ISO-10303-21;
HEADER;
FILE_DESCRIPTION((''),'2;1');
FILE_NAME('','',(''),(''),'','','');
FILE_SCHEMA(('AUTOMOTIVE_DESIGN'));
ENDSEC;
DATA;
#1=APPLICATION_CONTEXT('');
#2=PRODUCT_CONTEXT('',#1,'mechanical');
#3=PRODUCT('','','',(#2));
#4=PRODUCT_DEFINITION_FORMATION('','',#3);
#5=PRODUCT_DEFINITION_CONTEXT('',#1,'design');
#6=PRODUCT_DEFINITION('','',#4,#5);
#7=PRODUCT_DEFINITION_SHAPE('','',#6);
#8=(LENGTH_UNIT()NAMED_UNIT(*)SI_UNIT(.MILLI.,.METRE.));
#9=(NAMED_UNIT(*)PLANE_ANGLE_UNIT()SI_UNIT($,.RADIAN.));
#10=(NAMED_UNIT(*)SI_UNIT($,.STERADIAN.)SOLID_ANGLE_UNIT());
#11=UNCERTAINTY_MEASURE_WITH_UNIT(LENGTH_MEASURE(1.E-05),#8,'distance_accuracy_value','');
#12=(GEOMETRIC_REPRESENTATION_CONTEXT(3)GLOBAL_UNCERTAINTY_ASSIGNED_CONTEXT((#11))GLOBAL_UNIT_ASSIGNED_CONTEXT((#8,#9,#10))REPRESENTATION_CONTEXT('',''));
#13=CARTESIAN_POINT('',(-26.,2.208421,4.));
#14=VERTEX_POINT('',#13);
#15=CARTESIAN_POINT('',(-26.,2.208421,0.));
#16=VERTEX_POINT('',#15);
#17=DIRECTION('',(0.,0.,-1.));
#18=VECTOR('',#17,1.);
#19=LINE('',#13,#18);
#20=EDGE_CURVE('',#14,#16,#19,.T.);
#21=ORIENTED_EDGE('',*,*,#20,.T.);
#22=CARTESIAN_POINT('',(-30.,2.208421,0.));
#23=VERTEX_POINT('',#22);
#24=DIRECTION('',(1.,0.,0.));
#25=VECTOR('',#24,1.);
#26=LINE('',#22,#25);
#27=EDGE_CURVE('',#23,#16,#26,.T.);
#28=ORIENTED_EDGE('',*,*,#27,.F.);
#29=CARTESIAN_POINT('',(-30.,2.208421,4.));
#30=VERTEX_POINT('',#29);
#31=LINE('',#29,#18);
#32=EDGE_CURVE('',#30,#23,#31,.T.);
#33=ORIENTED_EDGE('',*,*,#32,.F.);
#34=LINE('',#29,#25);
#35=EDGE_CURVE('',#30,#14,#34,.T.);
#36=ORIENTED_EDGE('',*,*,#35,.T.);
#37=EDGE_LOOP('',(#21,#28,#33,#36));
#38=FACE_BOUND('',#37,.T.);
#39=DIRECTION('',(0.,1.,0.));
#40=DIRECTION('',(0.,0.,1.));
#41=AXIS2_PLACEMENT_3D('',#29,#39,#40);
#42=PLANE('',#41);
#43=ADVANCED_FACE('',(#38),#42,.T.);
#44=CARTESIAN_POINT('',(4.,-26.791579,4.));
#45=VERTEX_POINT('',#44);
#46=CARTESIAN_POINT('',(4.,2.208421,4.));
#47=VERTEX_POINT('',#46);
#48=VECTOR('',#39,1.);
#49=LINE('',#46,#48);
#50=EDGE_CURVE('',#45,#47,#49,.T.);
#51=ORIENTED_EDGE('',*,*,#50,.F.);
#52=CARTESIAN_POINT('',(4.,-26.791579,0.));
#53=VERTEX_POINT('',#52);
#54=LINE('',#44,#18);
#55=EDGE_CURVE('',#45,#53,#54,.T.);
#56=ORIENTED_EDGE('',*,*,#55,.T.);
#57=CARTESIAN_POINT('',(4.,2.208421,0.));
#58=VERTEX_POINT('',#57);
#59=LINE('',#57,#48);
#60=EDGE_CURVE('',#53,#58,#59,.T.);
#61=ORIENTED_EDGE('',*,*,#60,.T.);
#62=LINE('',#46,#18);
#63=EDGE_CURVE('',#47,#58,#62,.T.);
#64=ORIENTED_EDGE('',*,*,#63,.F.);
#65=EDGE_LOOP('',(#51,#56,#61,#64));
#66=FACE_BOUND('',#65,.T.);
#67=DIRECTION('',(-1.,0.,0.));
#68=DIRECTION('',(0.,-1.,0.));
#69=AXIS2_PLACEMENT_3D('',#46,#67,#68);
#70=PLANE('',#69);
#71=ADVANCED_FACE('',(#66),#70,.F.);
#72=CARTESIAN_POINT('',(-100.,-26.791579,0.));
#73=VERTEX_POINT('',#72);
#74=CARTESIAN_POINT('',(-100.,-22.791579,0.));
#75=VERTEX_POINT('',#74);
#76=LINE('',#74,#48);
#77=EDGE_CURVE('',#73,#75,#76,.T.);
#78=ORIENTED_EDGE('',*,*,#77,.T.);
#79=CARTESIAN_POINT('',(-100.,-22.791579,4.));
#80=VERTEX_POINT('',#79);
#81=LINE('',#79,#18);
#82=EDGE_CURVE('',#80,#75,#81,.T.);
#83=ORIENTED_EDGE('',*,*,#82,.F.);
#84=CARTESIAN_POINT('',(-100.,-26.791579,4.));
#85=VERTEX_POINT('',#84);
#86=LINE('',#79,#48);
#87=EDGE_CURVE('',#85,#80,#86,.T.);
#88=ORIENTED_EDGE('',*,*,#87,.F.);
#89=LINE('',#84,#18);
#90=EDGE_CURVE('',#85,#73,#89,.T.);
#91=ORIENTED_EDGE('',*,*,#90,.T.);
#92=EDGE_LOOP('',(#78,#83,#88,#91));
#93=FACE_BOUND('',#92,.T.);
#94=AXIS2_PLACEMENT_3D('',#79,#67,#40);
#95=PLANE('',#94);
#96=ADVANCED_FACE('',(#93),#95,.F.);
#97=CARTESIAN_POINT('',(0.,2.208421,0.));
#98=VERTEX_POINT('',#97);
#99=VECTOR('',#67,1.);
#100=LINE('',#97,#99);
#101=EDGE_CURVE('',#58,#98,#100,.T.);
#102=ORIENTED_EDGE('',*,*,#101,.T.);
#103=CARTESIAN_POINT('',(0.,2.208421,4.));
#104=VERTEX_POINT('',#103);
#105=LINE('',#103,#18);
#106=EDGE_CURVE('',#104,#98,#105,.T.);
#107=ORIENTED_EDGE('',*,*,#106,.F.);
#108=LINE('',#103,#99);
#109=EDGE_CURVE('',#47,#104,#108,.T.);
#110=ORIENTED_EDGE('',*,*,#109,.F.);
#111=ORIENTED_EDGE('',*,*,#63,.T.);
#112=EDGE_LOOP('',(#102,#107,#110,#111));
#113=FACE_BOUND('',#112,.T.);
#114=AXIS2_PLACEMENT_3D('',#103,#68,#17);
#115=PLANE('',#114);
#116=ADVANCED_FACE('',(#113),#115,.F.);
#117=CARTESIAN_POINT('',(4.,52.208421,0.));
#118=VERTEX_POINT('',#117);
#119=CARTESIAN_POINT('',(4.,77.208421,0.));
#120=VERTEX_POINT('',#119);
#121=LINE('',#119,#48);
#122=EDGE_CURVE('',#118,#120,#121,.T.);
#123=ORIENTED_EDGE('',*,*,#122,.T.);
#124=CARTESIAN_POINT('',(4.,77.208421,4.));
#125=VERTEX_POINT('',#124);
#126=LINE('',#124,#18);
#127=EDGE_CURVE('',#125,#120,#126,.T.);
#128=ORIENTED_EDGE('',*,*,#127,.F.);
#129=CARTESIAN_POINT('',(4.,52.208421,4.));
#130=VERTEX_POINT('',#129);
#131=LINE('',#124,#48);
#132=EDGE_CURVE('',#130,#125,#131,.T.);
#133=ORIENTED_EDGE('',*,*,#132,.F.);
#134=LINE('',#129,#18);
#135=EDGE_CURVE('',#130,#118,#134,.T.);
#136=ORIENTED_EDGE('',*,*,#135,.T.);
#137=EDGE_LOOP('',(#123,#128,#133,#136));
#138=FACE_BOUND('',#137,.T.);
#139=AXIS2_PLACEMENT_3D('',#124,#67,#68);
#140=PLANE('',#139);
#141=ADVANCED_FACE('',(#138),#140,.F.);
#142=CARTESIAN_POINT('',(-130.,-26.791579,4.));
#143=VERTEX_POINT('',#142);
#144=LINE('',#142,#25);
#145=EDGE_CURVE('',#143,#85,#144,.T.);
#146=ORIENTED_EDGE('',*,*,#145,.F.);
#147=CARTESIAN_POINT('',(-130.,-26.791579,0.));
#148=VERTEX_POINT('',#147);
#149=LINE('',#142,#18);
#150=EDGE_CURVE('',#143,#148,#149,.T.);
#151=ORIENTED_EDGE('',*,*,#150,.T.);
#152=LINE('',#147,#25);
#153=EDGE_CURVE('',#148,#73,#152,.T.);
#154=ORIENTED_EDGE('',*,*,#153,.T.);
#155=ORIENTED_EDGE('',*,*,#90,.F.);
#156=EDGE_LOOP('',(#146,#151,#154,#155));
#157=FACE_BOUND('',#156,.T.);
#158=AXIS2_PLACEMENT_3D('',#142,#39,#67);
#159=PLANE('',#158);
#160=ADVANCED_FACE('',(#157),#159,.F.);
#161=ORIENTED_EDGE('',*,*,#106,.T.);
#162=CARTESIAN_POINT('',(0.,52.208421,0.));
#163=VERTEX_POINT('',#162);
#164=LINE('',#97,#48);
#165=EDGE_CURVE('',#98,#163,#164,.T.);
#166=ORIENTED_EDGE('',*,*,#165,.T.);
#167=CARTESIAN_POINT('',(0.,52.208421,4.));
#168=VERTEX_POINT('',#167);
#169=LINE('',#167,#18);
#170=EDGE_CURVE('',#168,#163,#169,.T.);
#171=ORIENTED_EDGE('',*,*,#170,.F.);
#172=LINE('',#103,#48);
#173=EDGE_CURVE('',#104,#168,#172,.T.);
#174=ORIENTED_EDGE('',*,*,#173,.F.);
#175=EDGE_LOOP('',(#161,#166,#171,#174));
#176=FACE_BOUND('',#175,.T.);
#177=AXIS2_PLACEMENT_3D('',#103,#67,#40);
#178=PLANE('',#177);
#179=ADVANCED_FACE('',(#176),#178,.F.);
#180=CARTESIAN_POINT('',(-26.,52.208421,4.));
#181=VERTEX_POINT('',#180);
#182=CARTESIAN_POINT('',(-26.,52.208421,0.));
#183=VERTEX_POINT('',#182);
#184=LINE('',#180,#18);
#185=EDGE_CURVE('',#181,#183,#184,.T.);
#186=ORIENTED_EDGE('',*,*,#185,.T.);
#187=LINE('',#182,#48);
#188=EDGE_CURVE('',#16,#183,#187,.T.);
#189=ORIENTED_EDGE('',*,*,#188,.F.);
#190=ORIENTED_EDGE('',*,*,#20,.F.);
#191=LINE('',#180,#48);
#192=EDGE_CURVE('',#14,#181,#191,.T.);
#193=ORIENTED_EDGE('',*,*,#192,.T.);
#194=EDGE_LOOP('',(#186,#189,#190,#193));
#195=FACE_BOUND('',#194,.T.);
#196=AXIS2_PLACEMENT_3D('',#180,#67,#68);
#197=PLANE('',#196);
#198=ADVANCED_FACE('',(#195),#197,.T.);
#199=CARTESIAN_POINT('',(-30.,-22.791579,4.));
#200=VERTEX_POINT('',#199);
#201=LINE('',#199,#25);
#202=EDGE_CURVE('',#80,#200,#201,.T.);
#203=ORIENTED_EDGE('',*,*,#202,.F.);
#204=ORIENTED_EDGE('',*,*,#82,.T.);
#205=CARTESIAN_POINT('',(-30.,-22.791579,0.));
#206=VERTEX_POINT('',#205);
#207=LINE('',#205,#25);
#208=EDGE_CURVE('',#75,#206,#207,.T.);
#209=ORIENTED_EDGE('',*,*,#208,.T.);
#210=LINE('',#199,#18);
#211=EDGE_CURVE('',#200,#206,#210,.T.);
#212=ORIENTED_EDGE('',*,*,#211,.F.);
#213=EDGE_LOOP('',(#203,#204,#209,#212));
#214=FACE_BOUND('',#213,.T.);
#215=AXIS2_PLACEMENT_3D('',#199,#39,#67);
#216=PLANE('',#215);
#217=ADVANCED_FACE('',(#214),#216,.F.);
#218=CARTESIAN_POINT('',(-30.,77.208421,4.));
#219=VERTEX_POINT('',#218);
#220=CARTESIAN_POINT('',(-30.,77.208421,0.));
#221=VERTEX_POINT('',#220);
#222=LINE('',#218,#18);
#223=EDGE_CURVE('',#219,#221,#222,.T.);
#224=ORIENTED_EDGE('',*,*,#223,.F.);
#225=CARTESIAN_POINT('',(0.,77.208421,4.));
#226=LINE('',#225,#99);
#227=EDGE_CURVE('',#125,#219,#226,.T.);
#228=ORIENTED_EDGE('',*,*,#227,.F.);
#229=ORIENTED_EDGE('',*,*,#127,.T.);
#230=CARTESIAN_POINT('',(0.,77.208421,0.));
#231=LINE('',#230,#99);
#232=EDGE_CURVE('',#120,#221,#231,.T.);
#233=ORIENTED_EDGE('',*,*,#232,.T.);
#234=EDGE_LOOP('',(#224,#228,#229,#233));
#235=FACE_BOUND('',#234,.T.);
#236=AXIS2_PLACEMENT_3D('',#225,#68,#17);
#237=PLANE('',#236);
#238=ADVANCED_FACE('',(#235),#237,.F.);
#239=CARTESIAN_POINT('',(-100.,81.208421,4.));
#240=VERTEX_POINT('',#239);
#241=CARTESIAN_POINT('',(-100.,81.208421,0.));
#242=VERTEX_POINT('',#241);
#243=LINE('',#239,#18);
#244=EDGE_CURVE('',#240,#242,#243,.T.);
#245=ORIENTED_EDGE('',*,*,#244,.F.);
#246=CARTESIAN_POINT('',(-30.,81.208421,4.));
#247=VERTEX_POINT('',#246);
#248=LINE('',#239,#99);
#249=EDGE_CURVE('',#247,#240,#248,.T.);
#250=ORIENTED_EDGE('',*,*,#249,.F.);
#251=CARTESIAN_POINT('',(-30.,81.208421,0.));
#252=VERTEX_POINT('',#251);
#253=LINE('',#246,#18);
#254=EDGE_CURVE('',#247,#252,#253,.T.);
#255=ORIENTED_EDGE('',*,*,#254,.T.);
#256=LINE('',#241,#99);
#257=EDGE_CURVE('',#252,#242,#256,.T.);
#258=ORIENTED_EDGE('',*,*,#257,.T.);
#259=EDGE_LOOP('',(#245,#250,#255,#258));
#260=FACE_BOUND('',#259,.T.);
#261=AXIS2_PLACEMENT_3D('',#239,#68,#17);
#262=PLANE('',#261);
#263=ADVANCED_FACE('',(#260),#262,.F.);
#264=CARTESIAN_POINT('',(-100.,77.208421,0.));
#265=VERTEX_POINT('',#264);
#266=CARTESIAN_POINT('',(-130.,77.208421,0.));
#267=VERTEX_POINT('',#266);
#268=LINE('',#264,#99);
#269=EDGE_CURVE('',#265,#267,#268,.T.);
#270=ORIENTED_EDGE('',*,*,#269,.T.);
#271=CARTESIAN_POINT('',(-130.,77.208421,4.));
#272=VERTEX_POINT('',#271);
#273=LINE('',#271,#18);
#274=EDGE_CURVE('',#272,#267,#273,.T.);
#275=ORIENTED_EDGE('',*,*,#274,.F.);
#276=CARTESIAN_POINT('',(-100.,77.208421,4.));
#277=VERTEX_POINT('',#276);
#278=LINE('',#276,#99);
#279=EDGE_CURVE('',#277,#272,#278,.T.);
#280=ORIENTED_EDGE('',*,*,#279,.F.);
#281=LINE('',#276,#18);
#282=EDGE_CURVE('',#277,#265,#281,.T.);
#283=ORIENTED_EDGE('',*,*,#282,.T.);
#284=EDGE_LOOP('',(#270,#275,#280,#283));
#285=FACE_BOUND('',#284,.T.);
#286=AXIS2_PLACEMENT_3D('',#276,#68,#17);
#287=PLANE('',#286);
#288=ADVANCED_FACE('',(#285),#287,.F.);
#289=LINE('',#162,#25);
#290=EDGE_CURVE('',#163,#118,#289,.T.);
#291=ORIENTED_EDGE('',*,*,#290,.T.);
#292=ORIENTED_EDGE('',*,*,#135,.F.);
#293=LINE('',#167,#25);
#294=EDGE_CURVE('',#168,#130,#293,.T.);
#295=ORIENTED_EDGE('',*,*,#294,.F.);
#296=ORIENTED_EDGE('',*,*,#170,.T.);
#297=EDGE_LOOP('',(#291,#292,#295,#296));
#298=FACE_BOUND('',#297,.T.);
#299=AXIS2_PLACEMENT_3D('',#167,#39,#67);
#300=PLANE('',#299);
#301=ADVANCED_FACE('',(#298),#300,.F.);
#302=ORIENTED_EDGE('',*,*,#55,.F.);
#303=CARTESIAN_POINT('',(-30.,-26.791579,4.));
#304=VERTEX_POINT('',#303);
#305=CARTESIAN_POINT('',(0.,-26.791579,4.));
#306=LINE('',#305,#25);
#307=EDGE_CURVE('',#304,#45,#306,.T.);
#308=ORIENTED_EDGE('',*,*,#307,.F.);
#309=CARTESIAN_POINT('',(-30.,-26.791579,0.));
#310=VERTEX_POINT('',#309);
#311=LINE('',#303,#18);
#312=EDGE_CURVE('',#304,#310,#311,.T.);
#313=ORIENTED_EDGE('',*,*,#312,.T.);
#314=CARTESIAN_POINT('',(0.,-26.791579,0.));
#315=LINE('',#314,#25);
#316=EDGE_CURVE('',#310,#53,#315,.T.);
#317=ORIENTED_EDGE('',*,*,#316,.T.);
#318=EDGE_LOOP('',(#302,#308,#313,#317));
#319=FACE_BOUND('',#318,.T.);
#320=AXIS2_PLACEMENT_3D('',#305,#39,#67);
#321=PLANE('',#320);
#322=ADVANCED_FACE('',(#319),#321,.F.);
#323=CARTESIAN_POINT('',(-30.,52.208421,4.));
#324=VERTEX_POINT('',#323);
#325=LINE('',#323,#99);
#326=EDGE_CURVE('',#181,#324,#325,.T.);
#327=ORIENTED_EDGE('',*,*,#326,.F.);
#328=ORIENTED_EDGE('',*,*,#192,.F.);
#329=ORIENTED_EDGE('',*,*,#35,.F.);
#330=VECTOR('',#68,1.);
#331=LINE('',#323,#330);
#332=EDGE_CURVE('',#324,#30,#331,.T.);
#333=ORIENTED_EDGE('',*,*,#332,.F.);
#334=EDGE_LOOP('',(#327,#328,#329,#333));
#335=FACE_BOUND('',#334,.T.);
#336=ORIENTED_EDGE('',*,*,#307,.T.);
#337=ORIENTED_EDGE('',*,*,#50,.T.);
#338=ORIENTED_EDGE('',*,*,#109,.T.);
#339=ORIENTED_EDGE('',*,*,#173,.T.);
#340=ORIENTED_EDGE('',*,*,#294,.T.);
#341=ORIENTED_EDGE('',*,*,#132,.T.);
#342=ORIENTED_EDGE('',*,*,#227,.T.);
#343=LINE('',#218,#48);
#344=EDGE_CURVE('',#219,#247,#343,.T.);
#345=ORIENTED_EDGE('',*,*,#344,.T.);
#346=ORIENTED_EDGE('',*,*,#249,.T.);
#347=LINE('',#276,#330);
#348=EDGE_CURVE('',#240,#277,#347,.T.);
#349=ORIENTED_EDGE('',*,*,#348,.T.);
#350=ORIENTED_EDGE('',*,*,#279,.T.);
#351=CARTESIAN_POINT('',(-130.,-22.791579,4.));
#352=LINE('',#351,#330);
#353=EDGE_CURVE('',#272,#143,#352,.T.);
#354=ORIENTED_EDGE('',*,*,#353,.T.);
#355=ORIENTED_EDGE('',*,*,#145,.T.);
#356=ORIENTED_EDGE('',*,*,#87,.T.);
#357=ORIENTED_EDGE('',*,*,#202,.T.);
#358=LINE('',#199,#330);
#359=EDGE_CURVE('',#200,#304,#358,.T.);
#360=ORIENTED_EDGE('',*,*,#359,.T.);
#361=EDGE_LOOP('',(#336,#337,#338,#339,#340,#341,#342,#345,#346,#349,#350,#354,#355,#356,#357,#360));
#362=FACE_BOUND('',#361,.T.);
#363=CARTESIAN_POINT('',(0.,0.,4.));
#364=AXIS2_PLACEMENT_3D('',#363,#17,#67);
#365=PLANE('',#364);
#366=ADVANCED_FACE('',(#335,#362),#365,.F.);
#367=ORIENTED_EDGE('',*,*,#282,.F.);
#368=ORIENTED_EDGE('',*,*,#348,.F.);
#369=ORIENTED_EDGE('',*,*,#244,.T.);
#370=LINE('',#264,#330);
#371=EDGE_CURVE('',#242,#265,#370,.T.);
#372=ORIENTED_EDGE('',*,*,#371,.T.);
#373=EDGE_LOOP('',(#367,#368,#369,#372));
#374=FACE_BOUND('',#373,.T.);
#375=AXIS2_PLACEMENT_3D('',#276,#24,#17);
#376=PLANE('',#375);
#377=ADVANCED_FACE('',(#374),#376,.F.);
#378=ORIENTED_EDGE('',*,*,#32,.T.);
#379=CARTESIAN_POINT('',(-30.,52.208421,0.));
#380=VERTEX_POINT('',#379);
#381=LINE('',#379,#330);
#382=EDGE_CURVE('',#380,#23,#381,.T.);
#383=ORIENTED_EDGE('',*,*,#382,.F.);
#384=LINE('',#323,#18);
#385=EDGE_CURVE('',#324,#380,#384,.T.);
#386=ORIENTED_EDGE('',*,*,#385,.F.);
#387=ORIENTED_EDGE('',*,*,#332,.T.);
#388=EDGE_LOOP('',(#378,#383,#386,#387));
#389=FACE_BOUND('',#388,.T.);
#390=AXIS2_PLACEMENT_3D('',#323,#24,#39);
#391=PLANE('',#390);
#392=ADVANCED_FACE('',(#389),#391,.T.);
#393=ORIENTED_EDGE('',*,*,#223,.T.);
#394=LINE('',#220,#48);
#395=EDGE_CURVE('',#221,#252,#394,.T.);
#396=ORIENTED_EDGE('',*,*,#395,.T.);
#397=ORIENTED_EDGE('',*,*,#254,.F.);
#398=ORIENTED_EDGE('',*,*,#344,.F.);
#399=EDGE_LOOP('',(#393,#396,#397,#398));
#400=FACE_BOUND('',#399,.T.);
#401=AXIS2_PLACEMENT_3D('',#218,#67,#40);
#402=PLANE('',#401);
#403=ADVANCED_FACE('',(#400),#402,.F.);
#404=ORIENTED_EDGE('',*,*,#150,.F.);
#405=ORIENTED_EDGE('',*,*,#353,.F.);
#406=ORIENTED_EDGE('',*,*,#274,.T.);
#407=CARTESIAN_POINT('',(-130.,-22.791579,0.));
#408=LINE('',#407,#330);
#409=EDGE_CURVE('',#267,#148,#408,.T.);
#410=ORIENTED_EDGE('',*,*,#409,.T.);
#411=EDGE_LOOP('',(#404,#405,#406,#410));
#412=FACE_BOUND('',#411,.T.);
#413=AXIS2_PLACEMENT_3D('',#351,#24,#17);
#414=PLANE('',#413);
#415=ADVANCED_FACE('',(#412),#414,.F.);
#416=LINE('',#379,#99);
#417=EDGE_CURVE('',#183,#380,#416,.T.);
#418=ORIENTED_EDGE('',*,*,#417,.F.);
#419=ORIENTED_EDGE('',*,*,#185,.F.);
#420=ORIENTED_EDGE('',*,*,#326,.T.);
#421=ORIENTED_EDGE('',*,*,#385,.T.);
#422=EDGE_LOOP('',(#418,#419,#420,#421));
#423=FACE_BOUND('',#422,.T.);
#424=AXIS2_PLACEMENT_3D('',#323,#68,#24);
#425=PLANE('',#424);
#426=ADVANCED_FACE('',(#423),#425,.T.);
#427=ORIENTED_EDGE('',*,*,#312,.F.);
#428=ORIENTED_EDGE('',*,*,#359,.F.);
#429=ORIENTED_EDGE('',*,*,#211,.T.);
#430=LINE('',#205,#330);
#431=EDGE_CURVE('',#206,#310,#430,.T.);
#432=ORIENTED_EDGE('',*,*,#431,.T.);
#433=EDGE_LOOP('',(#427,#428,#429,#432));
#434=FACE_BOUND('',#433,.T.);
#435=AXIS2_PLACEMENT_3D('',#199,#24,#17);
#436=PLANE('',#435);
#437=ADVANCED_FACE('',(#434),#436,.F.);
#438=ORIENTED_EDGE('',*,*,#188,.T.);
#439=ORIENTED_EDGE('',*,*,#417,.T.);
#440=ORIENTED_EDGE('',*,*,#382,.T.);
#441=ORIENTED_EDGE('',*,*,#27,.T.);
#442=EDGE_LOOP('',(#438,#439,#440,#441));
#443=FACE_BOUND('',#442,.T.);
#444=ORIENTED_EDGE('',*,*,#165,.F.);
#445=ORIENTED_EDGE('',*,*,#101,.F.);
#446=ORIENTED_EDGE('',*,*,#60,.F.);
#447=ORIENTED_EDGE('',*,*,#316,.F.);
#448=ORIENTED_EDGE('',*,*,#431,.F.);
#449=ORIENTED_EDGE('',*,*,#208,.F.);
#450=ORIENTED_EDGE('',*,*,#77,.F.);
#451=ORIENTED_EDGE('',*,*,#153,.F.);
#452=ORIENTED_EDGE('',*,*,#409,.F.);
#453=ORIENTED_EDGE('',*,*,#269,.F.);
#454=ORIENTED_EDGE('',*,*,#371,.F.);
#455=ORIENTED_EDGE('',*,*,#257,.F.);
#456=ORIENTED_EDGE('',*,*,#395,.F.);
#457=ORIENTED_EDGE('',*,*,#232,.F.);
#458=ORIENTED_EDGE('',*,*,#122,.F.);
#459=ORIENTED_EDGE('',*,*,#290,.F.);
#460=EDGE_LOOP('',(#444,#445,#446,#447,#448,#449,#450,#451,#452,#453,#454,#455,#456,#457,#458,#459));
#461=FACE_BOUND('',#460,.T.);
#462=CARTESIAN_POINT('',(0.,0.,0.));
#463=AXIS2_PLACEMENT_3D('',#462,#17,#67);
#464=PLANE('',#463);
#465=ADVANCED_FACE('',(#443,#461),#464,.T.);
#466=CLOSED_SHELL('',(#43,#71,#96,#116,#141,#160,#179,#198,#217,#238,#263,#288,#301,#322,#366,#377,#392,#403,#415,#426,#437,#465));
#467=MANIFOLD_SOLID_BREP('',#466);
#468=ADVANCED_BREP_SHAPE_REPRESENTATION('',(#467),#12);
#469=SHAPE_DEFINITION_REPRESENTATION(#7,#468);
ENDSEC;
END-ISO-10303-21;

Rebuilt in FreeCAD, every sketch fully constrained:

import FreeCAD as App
import Part
import Sketcher
from FreeCAD import Vector

doc = App.newDocument("Part")
params = doc.addObject("Spreadsheet::Sheet", "Params")
for row, (alias, value) in enumerate([
    ("sketch1_width", "30 mm"),
    ("sketch1_width2", "70 mm"),
    ("sketch1_width3", "34 mm"),
    ("sketch1_width4", "4 mm"),
    ("sketch1_height", "104 mm"),
    ("pad1_length", "4 mm"),
], start=1):
    params.set(f"A{row}", alias)
    params.set(f"B{row}", "=" + value)
    params.setAlias(f"B{row}", alias)

body = doc.addObject("PartDesign::Body", "Body")

# Sketch on XY plane
sketch1 = body.newObject("Sketcher::SketchObject", "Sketch")
sketch1.AttachmentSupport = (doc.getObject("XY_Plane"), [""])
sketch1.MapMode = "FlatFace"
sketch1.addGeometry([
    Part.LineSegment(Vector(-100, 77.2, 0), Vector(-130, 77.2, 0)),  # 0
    Part.LineSegment(Vector(-130, 77.2, 0), Vector(-130, -26.8, 0)),  # 1
    Part.LineSegment(Vector(-130, -26.8, 0), Vector(-100, -26.8, 0)),  # 2
    Part.LineSegment(Vector(-100, -26.8, 0), Vector(-100, -22.8, 0)),  # 3
    Part.LineSegment(Vector(-100, -22.8, 0), Vector(-30, -22.8, 0)),  # 4
    Part.LineSegment(Vector(-30, -22.8, 0), Vector(-30, -26.8, 0)),  # 5
    Part.LineSegment(Vector(-30, -26.8, 0), Vector(4, -26.8, 0)),  # 6
    Part.LineSegment(Vector(4, -26.8, 0), Vector(4, 2.2, 0)),  # 7
    Part.LineSegment(Vector(4, 2.2, 0), Vector(0, 2.2, 0)),  # 8
    Part.LineSegment(Vector(0, 2.2, 0), Vector(0, 52.2, 0)),  # 9
    Part.LineSegment(Vector(0, 52.2, 0), Vector(4, 52.2, 0)),  # 10
    Part.LineSegment(Vector(4, 52.2, 0), Vector(4, 77.2, 0)),  # 11
    Part.LineSegment(Vector(4, 77.2, 0), Vector(-30, 77.2, 0)),  # 12
    Part.LineSegment(Vector(-30, 77.2, 0), Vector(-30, 81.2, 0)),  # 13
    Part.LineSegment(Vector(-30, 81.2, 0), Vector(-100, 81.2, 0)),  # 14
    Part.LineSegment(Vector(-100, 81.2, 0), Vector(-100, 77.2, 0)),  # 15
    Part.LineSegment(Vector(-26, 2.2, 0), Vector(-30, 2.2, 0)),  # 16
    Part.LineSegment(Vector(-30, 2.2, 0), Vector(-30, 52.2, 0)),  # 17
    Part.LineSegment(Vector(-30, 52.2, 0), Vector(-26, 52.2, 0)),  # 18
    Part.LineSegment(Vector(-26, 52.2, 0), Vector(-26, 2.2, 0)),  # 19
], False)
sketch1.addConstraint([
    Sketcher.Constraint("Coincident", 0, 2, 1, 1),
    Sketcher.Constraint("Coincident", 1, 2, 2, 1),
    Sketcher.Constraint("Coincident", 2, 2, 3, 1),
    Sketcher.Constraint("Coincident", 3, 2, 4, 1),
    Sketcher.Constraint("Coincident", 4, 2, 5, 1),
    Sketcher.Constraint("Coincident", 5, 2, 6, 1),
    Sketcher.Constraint("Coincident", 6, 2, 7, 1),
    Sketcher.Constraint("Coincident", 7, 2, 8, 1),
    Sketcher.Constraint("Coincident", 8, 2, 9, 1),
    Sketcher.Constraint("Coincident", 9, 2, 10, 1),
    Sketcher.Constraint("Coincident", 10, 2, 11, 1),
    Sketcher.Constraint("Coincident", 11, 2, 12, 1),
    Sketcher.Constraint("Coincident", 12, 2, 13, 1),
    Sketcher.Constraint("Coincident", 13, 2, 14, 1),
    Sketcher.Constraint("Coincident", 14, 2, 15, 1),
    Sketcher.Constraint("Coincident", 15, 2, 0, 1),
    Sketcher.Constraint("Coincident", 16, 2, 17, 1),
    Sketcher.Constraint("Coincident", 17, 2, 18, 1),
    Sketcher.Constraint("Coincident", 18, 2, 19, 1),
    Sketcher.Constraint("Coincident", 19, 2, 16, 1),
    Sketcher.Constraint("Horizontal", 0),
    Sketcher.Constraint("Vertical", 1),
    Sketcher.Constraint("Horizontal", 2),
    Sketcher.Constraint("Vertical", 3),
    Sketcher.Constraint("Horizontal", 4),
    Sketcher.Constraint("Vertical", 5),
    Sketcher.Constraint("Horizontal", 6),
    Sketcher.Constraint("Vertical", 7),
    Sketcher.Constraint("Horizontal", 8),
    Sketcher.Constraint("Vertical", 9),
    Sketcher.Constraint("Horizontal", 10),
    Sketcher.Constraint("Vertical", 11),
    Sketcher.Constraint("Horizontal", 12),
    Sketcher.Constraint("Vertical", 13),
    Sketcher.Constraint("Horizontal", 14),
    Sketcher.Constraint("Vertical", 15),
    Sketcher.Constraint("Horizontal", 16),
    Sketcher.Constraint("Vertical", 17),
    Sketcher.Constraint("Horizontal", 18),
    Sketcher.Constraint("Vertical", 19),
    Sketcher.Constraint("PointOnObject", 8, 2, -2),
    Sketcher.Constraint("Horizontal", 2, 2, 5, 2),
    Sketcher.Constraint("Horizontal", 0, 2, 11, 2),
    Sketcher.Constraint("Horizontal", 8, 2, 16, 2),
    Sketcher.Constraint("Horizontal", 10, 2, 17, 2),
    Sketcher.Constraint("Vertical", 7, 2, 10, 2),
    Sketcher.Constraint("Vertical", 5, 2, 12, 2),
    Sketcher.Constraint("Vertical", 3, 2, 14, 2),
    Sketcher.Constraint("Vertical", 13, 2, 16, 2),
    Sketcher.Constraint("Equal", 10, 16),
    Sketcher.Constraint("Equal", 18, 3),
    Sketcher.Constraint("Equal", 5, 13),
    Sketcher.Constraint("DistanceX", 0, 2, 0, 1, 30.0),
    Sketcher.Constraint("DistanceX", 4, 1, 4, 2, 70.0),
    Sketcher.Constraint("DistanceX", 6, 1, 6, 2, 34.0),
    Sketcher.Constraint("DistanceX", 8, 2, 8, 1, 4.0),
    Sketcher.Constraint("DistanceY", 1, 2, 1, 1, 104.0),
    Sketcher.Constraint("DistanceY", 7, 1, 7, 2, 29.0),
    Sketcher.Constraint("DistanceY", 9, 1, 9, 2, 50.0),
    Sketcher.Constraint("DistanceY", -1, 1, 0, 2, 77.208421),
])
sketch1.setExpression("Constraints[52]", "Params.sketch1_width")
sketch1.setExpression("Constraints[53]", "Params.sketch1_width2")
sketch1.setExpression("Constraints[54]", "Params.sketch1_width3")
sketch1.setExpression("Constraints[55]", "Params.sketch1_width4")
sketch1.setExpression("Constraints[56]", "Params.sketch1_height")
pad1 = body.newObject("PartDesign::Pad", "Pad")
pad1.Profile = sketch1
pad1.setExpression("Length", "Params.pad1_length")

doc.recompute()
